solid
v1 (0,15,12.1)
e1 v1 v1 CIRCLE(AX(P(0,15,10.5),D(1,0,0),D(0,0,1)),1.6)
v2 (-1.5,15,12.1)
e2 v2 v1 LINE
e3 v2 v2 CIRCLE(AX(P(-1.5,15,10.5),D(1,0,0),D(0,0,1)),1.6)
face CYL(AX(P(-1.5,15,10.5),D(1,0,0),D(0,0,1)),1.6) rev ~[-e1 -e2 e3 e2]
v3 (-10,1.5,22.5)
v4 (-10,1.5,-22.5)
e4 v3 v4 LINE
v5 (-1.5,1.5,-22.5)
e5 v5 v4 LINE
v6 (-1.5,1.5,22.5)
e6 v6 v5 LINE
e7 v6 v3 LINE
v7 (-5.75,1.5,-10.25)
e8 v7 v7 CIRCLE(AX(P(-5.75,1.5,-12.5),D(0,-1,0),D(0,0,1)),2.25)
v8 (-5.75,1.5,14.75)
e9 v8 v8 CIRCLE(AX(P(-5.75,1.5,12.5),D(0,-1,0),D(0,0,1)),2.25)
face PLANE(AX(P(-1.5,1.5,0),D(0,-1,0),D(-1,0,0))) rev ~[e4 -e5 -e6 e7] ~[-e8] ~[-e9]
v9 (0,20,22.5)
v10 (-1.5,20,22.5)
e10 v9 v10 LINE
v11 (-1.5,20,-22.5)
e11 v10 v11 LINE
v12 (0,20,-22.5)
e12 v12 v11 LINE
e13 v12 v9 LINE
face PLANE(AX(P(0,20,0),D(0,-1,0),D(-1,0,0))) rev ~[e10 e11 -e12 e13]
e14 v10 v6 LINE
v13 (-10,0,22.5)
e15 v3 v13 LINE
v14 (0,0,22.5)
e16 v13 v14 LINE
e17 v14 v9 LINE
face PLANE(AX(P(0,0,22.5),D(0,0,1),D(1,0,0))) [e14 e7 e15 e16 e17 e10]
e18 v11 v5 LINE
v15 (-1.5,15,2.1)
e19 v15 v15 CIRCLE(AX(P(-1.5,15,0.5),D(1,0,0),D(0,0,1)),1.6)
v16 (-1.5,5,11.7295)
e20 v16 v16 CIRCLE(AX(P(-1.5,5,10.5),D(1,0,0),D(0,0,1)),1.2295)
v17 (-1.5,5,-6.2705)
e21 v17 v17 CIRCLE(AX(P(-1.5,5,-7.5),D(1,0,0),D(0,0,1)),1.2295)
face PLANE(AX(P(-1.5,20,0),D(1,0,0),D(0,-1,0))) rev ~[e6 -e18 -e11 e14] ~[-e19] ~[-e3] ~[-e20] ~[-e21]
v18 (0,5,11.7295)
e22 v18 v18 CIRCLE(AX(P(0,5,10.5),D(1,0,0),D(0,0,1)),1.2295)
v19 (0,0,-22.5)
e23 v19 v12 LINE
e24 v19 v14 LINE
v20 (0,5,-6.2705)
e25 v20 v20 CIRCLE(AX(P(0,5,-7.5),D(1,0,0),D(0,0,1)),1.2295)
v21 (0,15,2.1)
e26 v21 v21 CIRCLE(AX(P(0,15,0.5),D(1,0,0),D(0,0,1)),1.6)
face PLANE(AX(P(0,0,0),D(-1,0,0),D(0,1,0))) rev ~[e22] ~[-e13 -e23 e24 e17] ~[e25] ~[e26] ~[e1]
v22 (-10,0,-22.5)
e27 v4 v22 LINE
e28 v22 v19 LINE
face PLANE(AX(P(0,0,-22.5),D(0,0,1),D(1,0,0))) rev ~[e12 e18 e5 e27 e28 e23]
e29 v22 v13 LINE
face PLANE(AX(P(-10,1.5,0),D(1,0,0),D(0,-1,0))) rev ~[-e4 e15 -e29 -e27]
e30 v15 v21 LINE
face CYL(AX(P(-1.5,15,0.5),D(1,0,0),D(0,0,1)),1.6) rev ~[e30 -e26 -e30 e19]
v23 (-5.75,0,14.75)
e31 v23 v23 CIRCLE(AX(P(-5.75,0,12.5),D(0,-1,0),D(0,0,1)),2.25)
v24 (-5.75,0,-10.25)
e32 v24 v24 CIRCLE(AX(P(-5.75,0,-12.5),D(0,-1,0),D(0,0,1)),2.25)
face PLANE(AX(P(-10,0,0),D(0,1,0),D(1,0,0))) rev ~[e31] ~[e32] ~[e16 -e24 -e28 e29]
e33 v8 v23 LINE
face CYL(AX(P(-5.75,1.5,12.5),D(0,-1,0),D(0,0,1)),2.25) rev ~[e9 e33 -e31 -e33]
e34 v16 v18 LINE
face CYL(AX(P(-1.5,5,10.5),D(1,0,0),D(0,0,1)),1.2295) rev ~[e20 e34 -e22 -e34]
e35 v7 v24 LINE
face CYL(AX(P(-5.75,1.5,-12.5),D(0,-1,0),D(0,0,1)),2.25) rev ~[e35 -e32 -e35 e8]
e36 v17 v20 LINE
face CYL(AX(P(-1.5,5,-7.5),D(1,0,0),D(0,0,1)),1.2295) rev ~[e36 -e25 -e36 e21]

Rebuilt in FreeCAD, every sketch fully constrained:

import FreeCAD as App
import Part
import Sketcher
from FreeCAD import Vector
Q = App.Units.Quantity


def add_polygon(sketch, points):
    """Adds a closed chain of lines whose ends are joined by coincident constraints."""
    first, n = sketch.GeometryCount, len(points)
    for a, b in zip(points, points[1:] + points[:1]):
        sketch.addGeometry(Part.LineSegment(App.Vector(*a, 0), App.Vector(*b, 0)), False)
    for i in range(n):
        sketch.addConstraint(Sketcher.Constraint("Coincident", first + i, 2, first + (i + 1) % n, 1))

doc = App.newDocument("Part")
body = doc.addObject("PartDesign::Body", "Body")

# Sketch on XY plane
sketch1 = body.newObject("Sketcher::SketchObject", "Sketch")
sketch1.AttachmentSupport = (doc.getObject("XY_Plane"), [""])
sketch1.MapMode = "FlatFace"
add_polygon(sketch1, [(-10, 1.5), (-10, 0), (0, 0), (0, 20), (-1.5, 20), (-1.5, 1.5)])  # lines 0-5
sketch1.addConstraint([
    Sketcher.Constraint("Vertical", 0),
    Sketcher.Constraint("Horizontal", 1),
    Sketcher.Constraint("Vertical", 2),
    Sketcher.Constraint("Horizontal", 3),
    Sketcher.Constraint("Vertical", 4),
    Sketcher.Constraint("Horizontal", 5),
    Sketcher.Constraint("Coincident", 1, 2, -1, 1),
    Sketcher.Constraint("Equal", 3, 0),
    Sketcher.Constraint("DistanceX", 1, 1, 1, 2, Q("10 mm")),
    Sketcher.Constraint("DistanceY", 2, 1, 2, 2, Q("20 mm")),
    Sketcher.Constraint("DistanceX", 3, 2, 3, 1, Q("1.5 mm")),
])
pad1 = body.newObject("PartDesign::Pad", "Pad")
pad1.Profile = sketch1
pad1.Length = 45
pad1.Midplane = True

# Sketch on XZ plane
sketch2 = body.newObject("Sketcher::SketchObject", "Sketch001")
sketch2.AttachmentSupport = (doc.getObject("XZ_Plane"), [""])
sketch2.MapMode = "FlatFace"
sketch2.AttachmentOffset = App.Placement(Vector(0, 0, -1.5), App.Rotation())
sketch2.addGeometry([
    Part.Circle(Vector(-5.8, -12.5, 0), Vector(0, 0, 1), 2.2),
    Part.Circle(Vector(-5.8, 12.5, 0), Vector(0, 0, 1), 2.2),
], False)
sketch2.addConstraint([
    Sketcher.Constraint("Equal", 0, 1),
    Sketcher.Constraint("Symmetric", 0, 3, 1, 3, -1),
    Sketcher.Constraint("Diameter", 0, Q("4.5 mm")),
    Sketcher.Constraint("DistanceY", 0, 3, 1, 3, Q("25 mm")),
    Sketcher.Constraint("DistanceX", 0, 3, -1, 1, Q("5.75 mm")),
])
doc.recompute()
hole = body.newObject("PartDesign::Hole", "Hole")
hole.Profile = sketch2
hole.ThreadType = "None"
hole.Diameter = 4.5
hole.DepthType = "ThroughAll"
hole.Reversed = True

# Sketch on YZ plane
sketch3 = body.newObject("Sketcher::SketchObject", "Sketch002")
sketch3.AttachmentSupport = (doc.getObject("YZ_Plane"), [""])
sketch3.MapMode = "FlatFace"
sketch3.AttachmentOffset = App.Placement(Vector(0, 0, -1.5), App.Rotation())
sketch3.addGeometry([
    Part.Circle(Vector(15, 10.5, 0), Vector(0, 0, 1), 1.6),
    Part.Circle(Vector(15, 0.5, 0), Vector(0, 0, 1), 1.6),
], False)
sketch3.addConstraint([
    Sketcher.Constraint("Equal", 0, 1),
    Sketcher.Constraint("Vertical", 0, 3, 1, 3),
    Sketcher.Constraint("Diameter", 0, Q("3.2 mm")),
    Sketcher.Constraint("DistanceX", -1, 1, 0, 3, Q("15 mm")),
    Sketcher.Constraint("DistanceY", 1, 3, 0, 3, Q("10 mm")),
    Sketcher.Constraint("DistanceY", -1, 1, 0, 3, Q("10.5 mm")),
])
doc.recompute()
hole2 = body.newObject("PartDesign::Hole", "Hole001")
hole2.Profile = sketch3
hole2.ThreadType = "None"
hole2.Diameter = 3.2
hole2.DepthType = "ThroughAll"
hole2.Reversed = True

# Sketch on YZ plane
sketch4 = body.newObject("Sketcher::SketchObject", "Sketch003")
sketch4.AttachmentSupport = (doc.getObject("YZ_Plane"), [""])
sketch4.MapMode = "FlatFace"
sketch4.AttachmentOffset = App.Placement(Vector(0, 0, -1.5), App.Rotation())
sketch4.addGeometry([
    Part.Circle(Vector(5, -7.5, 0), Vector(0, 0, 1), 1.2),
    Part.Circle(Vector(5, 10.5, 0), Vector(0, 0, 1), 1.2),
], False)
sketch4.addConstraint([
    Sketcher.Constraint("Equal", 0, 1),
    Sketcher.Constraint("Vertical", 0, 3, 1, 3),
    Sketcher.Constraint("Diameter", 0, Q("2.459 mm")),
    Sketcher.Constraint("DistanceX", -1, 1, 0, 3, Q("5 mm")),
    Sketcher.Constraint("DistanceY", 0, 3, 1, 3, Q("18 mm")),
    Sketcher.Constraint("DistanceY", 0, 3, -1, 1, Q("7.5 mm")),
])
doc.recompute()
hole3 = body.newObject("PartDesign::Hole", "Hole002")
hole3.Profile = sketch4
hole3.ThreadType = "None"
hole3.Diameter = 2.459
hole3.DepthType = "ThroughAll"
hole3.Reversed = True

doc.recompute()
